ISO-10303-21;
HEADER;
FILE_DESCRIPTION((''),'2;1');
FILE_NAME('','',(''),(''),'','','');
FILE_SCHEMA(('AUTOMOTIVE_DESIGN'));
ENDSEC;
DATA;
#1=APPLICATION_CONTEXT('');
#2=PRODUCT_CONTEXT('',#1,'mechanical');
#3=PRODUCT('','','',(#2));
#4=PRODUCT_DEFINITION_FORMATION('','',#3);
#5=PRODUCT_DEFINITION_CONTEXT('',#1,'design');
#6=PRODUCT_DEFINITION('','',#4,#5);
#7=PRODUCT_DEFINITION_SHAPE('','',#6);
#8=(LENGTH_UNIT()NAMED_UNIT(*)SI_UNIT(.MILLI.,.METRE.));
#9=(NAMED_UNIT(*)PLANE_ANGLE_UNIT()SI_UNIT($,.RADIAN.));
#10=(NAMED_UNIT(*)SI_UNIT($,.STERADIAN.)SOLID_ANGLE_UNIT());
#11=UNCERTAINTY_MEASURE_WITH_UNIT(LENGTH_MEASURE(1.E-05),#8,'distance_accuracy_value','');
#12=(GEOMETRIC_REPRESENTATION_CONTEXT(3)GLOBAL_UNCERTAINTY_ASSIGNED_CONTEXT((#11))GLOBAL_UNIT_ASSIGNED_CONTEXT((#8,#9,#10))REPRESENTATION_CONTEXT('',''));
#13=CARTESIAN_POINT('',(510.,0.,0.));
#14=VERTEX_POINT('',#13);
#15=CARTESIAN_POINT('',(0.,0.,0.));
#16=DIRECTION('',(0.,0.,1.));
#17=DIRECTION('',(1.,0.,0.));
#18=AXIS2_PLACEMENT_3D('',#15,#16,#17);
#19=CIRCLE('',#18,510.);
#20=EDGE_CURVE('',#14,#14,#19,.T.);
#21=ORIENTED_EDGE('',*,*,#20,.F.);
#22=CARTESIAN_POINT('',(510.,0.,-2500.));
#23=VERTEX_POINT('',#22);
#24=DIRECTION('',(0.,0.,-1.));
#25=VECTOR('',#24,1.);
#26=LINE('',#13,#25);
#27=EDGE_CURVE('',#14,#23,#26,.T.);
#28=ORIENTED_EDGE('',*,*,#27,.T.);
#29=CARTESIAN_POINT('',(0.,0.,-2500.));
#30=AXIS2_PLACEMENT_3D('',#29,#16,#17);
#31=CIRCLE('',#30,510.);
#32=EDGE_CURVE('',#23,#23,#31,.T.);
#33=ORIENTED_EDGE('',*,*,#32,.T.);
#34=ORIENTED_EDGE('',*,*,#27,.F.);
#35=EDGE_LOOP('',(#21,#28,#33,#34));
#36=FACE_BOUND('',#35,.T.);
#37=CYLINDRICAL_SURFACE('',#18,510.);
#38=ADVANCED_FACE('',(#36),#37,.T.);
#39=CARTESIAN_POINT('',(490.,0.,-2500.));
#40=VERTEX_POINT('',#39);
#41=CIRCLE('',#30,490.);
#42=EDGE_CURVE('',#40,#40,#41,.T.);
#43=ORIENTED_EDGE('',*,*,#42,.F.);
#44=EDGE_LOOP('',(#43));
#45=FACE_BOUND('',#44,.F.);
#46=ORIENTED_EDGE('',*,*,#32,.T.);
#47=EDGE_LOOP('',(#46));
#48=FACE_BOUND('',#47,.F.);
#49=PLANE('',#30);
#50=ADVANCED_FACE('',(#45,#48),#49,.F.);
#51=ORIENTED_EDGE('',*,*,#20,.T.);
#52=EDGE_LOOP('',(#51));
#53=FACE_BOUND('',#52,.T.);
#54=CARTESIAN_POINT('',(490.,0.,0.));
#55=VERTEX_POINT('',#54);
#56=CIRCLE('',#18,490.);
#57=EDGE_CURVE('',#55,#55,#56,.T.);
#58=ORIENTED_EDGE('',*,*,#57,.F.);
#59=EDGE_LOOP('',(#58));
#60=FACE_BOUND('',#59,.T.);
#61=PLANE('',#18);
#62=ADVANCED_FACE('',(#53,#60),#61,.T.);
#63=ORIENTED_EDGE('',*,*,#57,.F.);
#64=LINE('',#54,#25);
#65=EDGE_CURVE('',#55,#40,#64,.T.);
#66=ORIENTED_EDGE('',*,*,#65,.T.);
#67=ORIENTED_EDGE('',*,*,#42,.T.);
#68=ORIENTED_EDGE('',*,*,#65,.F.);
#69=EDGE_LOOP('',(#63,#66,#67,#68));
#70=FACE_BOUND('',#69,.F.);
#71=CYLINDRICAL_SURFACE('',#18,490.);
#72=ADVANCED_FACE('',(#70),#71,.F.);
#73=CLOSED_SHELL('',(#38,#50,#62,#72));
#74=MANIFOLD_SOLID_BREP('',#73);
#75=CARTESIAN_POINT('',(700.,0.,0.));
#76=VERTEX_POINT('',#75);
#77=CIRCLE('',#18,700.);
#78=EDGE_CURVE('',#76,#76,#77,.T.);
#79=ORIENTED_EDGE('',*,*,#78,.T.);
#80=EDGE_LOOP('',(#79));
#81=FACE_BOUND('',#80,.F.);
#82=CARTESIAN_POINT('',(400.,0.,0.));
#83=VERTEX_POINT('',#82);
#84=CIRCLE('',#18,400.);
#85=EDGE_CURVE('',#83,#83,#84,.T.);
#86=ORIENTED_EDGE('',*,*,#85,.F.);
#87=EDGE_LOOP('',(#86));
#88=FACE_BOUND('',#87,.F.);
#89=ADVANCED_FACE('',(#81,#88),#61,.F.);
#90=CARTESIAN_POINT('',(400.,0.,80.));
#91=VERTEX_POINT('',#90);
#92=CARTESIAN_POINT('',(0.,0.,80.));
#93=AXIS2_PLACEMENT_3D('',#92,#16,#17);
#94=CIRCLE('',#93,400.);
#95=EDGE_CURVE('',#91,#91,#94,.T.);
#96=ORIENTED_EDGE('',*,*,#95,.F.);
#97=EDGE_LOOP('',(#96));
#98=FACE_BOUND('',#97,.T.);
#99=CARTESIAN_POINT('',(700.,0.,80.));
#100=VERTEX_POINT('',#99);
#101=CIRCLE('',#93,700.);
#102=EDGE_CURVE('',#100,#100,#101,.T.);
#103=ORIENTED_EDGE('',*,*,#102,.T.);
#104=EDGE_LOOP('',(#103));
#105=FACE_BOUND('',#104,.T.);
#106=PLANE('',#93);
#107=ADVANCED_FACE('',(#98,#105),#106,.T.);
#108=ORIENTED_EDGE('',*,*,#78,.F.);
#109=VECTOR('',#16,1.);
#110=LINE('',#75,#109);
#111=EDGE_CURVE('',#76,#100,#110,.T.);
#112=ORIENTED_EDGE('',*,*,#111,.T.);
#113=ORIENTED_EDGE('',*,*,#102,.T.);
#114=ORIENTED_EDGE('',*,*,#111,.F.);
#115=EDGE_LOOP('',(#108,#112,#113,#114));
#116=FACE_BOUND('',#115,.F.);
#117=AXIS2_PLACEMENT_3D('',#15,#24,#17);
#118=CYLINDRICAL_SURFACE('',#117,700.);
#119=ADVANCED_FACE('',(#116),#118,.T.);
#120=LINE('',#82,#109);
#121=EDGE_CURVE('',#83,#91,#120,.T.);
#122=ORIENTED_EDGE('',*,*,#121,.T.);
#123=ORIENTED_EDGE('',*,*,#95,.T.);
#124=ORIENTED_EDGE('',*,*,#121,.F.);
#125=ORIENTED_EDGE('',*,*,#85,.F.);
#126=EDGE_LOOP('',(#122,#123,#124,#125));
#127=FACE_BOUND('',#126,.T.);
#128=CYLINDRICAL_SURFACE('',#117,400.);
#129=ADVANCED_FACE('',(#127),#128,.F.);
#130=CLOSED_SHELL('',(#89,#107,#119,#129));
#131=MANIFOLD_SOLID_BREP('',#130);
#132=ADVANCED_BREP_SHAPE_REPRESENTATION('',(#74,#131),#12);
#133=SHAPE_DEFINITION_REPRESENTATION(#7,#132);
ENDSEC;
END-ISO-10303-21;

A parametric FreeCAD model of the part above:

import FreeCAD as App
import Part
import Sketcher

doc = App.newDocument("Part")
body = doc.addObject("PartDesign::Body", "Body")

sketch1 = body.newObject("Sketcher::SketchObject", "Sketch")
sketch1.AttachmentSupport = (doc.getObject("XY_Plane"), [""])
sketch1.MapMode = "FlatFace"
sketch1.addGeometry([
    Part.Circle(App.Vector(0, 0, 0), App.Vector(0, 0, 1), 510),
    Part.Circle(App.Vector(0, 0, 0), App.Vector(0, 0, 1), 490),
], False)
sketch1.addConstraint([
    Sketcher.Constraint("Coincident", 0, 3, -1, 1),
    Sketcher.Constraint("Coincident", 1, 3, -1, 1),
    Sketcher.Constraint("Diameter", 0, 1020.0),
    Sketcher.Constraint("Diameter", 1, 980.0),
])
pad1 = body.newObject("PartDesign::Pad", "Pad")
pad1.Profile = sketch1
pad1.Length = 2500
pad1.Reversed = True
body2 = doc.addObject("PartDesign::Body", "Body001")

sketch2 = body2.newObject("Sketcher::SketchObject", "Sketch001")
sketch2.AttachmentSupport = (doc.getObject("XY_Plane001"), [""])
sketch2.MapMode = "FlatFace"
sketch2.addGeometry([
    Part.Circle(App.Vector(0, 0, 0), App.Vector(0, 0, 1), 700),
    Part.Circle(App.Vector(0, 0, 0), App.Vector(0, 0, 1), 400),
], False)
sketch2.addConstraint([
    Sketcher.Constraint("Coincident", 0, 3, -1, 1),
    Sketcher.Constraint("Coincident", 1, 3, -1, 1),
    Sketcher.Constraint("Diameter", 0, 1400.0),
    Sketcher.Constraint("Diameter", 1, 800.0),
])
pad2 = body2.newObject("PartDesign::Pad", "Pad001")
pad2.Profile = sketch2
pad2.Length = 80

doc.recompute()
